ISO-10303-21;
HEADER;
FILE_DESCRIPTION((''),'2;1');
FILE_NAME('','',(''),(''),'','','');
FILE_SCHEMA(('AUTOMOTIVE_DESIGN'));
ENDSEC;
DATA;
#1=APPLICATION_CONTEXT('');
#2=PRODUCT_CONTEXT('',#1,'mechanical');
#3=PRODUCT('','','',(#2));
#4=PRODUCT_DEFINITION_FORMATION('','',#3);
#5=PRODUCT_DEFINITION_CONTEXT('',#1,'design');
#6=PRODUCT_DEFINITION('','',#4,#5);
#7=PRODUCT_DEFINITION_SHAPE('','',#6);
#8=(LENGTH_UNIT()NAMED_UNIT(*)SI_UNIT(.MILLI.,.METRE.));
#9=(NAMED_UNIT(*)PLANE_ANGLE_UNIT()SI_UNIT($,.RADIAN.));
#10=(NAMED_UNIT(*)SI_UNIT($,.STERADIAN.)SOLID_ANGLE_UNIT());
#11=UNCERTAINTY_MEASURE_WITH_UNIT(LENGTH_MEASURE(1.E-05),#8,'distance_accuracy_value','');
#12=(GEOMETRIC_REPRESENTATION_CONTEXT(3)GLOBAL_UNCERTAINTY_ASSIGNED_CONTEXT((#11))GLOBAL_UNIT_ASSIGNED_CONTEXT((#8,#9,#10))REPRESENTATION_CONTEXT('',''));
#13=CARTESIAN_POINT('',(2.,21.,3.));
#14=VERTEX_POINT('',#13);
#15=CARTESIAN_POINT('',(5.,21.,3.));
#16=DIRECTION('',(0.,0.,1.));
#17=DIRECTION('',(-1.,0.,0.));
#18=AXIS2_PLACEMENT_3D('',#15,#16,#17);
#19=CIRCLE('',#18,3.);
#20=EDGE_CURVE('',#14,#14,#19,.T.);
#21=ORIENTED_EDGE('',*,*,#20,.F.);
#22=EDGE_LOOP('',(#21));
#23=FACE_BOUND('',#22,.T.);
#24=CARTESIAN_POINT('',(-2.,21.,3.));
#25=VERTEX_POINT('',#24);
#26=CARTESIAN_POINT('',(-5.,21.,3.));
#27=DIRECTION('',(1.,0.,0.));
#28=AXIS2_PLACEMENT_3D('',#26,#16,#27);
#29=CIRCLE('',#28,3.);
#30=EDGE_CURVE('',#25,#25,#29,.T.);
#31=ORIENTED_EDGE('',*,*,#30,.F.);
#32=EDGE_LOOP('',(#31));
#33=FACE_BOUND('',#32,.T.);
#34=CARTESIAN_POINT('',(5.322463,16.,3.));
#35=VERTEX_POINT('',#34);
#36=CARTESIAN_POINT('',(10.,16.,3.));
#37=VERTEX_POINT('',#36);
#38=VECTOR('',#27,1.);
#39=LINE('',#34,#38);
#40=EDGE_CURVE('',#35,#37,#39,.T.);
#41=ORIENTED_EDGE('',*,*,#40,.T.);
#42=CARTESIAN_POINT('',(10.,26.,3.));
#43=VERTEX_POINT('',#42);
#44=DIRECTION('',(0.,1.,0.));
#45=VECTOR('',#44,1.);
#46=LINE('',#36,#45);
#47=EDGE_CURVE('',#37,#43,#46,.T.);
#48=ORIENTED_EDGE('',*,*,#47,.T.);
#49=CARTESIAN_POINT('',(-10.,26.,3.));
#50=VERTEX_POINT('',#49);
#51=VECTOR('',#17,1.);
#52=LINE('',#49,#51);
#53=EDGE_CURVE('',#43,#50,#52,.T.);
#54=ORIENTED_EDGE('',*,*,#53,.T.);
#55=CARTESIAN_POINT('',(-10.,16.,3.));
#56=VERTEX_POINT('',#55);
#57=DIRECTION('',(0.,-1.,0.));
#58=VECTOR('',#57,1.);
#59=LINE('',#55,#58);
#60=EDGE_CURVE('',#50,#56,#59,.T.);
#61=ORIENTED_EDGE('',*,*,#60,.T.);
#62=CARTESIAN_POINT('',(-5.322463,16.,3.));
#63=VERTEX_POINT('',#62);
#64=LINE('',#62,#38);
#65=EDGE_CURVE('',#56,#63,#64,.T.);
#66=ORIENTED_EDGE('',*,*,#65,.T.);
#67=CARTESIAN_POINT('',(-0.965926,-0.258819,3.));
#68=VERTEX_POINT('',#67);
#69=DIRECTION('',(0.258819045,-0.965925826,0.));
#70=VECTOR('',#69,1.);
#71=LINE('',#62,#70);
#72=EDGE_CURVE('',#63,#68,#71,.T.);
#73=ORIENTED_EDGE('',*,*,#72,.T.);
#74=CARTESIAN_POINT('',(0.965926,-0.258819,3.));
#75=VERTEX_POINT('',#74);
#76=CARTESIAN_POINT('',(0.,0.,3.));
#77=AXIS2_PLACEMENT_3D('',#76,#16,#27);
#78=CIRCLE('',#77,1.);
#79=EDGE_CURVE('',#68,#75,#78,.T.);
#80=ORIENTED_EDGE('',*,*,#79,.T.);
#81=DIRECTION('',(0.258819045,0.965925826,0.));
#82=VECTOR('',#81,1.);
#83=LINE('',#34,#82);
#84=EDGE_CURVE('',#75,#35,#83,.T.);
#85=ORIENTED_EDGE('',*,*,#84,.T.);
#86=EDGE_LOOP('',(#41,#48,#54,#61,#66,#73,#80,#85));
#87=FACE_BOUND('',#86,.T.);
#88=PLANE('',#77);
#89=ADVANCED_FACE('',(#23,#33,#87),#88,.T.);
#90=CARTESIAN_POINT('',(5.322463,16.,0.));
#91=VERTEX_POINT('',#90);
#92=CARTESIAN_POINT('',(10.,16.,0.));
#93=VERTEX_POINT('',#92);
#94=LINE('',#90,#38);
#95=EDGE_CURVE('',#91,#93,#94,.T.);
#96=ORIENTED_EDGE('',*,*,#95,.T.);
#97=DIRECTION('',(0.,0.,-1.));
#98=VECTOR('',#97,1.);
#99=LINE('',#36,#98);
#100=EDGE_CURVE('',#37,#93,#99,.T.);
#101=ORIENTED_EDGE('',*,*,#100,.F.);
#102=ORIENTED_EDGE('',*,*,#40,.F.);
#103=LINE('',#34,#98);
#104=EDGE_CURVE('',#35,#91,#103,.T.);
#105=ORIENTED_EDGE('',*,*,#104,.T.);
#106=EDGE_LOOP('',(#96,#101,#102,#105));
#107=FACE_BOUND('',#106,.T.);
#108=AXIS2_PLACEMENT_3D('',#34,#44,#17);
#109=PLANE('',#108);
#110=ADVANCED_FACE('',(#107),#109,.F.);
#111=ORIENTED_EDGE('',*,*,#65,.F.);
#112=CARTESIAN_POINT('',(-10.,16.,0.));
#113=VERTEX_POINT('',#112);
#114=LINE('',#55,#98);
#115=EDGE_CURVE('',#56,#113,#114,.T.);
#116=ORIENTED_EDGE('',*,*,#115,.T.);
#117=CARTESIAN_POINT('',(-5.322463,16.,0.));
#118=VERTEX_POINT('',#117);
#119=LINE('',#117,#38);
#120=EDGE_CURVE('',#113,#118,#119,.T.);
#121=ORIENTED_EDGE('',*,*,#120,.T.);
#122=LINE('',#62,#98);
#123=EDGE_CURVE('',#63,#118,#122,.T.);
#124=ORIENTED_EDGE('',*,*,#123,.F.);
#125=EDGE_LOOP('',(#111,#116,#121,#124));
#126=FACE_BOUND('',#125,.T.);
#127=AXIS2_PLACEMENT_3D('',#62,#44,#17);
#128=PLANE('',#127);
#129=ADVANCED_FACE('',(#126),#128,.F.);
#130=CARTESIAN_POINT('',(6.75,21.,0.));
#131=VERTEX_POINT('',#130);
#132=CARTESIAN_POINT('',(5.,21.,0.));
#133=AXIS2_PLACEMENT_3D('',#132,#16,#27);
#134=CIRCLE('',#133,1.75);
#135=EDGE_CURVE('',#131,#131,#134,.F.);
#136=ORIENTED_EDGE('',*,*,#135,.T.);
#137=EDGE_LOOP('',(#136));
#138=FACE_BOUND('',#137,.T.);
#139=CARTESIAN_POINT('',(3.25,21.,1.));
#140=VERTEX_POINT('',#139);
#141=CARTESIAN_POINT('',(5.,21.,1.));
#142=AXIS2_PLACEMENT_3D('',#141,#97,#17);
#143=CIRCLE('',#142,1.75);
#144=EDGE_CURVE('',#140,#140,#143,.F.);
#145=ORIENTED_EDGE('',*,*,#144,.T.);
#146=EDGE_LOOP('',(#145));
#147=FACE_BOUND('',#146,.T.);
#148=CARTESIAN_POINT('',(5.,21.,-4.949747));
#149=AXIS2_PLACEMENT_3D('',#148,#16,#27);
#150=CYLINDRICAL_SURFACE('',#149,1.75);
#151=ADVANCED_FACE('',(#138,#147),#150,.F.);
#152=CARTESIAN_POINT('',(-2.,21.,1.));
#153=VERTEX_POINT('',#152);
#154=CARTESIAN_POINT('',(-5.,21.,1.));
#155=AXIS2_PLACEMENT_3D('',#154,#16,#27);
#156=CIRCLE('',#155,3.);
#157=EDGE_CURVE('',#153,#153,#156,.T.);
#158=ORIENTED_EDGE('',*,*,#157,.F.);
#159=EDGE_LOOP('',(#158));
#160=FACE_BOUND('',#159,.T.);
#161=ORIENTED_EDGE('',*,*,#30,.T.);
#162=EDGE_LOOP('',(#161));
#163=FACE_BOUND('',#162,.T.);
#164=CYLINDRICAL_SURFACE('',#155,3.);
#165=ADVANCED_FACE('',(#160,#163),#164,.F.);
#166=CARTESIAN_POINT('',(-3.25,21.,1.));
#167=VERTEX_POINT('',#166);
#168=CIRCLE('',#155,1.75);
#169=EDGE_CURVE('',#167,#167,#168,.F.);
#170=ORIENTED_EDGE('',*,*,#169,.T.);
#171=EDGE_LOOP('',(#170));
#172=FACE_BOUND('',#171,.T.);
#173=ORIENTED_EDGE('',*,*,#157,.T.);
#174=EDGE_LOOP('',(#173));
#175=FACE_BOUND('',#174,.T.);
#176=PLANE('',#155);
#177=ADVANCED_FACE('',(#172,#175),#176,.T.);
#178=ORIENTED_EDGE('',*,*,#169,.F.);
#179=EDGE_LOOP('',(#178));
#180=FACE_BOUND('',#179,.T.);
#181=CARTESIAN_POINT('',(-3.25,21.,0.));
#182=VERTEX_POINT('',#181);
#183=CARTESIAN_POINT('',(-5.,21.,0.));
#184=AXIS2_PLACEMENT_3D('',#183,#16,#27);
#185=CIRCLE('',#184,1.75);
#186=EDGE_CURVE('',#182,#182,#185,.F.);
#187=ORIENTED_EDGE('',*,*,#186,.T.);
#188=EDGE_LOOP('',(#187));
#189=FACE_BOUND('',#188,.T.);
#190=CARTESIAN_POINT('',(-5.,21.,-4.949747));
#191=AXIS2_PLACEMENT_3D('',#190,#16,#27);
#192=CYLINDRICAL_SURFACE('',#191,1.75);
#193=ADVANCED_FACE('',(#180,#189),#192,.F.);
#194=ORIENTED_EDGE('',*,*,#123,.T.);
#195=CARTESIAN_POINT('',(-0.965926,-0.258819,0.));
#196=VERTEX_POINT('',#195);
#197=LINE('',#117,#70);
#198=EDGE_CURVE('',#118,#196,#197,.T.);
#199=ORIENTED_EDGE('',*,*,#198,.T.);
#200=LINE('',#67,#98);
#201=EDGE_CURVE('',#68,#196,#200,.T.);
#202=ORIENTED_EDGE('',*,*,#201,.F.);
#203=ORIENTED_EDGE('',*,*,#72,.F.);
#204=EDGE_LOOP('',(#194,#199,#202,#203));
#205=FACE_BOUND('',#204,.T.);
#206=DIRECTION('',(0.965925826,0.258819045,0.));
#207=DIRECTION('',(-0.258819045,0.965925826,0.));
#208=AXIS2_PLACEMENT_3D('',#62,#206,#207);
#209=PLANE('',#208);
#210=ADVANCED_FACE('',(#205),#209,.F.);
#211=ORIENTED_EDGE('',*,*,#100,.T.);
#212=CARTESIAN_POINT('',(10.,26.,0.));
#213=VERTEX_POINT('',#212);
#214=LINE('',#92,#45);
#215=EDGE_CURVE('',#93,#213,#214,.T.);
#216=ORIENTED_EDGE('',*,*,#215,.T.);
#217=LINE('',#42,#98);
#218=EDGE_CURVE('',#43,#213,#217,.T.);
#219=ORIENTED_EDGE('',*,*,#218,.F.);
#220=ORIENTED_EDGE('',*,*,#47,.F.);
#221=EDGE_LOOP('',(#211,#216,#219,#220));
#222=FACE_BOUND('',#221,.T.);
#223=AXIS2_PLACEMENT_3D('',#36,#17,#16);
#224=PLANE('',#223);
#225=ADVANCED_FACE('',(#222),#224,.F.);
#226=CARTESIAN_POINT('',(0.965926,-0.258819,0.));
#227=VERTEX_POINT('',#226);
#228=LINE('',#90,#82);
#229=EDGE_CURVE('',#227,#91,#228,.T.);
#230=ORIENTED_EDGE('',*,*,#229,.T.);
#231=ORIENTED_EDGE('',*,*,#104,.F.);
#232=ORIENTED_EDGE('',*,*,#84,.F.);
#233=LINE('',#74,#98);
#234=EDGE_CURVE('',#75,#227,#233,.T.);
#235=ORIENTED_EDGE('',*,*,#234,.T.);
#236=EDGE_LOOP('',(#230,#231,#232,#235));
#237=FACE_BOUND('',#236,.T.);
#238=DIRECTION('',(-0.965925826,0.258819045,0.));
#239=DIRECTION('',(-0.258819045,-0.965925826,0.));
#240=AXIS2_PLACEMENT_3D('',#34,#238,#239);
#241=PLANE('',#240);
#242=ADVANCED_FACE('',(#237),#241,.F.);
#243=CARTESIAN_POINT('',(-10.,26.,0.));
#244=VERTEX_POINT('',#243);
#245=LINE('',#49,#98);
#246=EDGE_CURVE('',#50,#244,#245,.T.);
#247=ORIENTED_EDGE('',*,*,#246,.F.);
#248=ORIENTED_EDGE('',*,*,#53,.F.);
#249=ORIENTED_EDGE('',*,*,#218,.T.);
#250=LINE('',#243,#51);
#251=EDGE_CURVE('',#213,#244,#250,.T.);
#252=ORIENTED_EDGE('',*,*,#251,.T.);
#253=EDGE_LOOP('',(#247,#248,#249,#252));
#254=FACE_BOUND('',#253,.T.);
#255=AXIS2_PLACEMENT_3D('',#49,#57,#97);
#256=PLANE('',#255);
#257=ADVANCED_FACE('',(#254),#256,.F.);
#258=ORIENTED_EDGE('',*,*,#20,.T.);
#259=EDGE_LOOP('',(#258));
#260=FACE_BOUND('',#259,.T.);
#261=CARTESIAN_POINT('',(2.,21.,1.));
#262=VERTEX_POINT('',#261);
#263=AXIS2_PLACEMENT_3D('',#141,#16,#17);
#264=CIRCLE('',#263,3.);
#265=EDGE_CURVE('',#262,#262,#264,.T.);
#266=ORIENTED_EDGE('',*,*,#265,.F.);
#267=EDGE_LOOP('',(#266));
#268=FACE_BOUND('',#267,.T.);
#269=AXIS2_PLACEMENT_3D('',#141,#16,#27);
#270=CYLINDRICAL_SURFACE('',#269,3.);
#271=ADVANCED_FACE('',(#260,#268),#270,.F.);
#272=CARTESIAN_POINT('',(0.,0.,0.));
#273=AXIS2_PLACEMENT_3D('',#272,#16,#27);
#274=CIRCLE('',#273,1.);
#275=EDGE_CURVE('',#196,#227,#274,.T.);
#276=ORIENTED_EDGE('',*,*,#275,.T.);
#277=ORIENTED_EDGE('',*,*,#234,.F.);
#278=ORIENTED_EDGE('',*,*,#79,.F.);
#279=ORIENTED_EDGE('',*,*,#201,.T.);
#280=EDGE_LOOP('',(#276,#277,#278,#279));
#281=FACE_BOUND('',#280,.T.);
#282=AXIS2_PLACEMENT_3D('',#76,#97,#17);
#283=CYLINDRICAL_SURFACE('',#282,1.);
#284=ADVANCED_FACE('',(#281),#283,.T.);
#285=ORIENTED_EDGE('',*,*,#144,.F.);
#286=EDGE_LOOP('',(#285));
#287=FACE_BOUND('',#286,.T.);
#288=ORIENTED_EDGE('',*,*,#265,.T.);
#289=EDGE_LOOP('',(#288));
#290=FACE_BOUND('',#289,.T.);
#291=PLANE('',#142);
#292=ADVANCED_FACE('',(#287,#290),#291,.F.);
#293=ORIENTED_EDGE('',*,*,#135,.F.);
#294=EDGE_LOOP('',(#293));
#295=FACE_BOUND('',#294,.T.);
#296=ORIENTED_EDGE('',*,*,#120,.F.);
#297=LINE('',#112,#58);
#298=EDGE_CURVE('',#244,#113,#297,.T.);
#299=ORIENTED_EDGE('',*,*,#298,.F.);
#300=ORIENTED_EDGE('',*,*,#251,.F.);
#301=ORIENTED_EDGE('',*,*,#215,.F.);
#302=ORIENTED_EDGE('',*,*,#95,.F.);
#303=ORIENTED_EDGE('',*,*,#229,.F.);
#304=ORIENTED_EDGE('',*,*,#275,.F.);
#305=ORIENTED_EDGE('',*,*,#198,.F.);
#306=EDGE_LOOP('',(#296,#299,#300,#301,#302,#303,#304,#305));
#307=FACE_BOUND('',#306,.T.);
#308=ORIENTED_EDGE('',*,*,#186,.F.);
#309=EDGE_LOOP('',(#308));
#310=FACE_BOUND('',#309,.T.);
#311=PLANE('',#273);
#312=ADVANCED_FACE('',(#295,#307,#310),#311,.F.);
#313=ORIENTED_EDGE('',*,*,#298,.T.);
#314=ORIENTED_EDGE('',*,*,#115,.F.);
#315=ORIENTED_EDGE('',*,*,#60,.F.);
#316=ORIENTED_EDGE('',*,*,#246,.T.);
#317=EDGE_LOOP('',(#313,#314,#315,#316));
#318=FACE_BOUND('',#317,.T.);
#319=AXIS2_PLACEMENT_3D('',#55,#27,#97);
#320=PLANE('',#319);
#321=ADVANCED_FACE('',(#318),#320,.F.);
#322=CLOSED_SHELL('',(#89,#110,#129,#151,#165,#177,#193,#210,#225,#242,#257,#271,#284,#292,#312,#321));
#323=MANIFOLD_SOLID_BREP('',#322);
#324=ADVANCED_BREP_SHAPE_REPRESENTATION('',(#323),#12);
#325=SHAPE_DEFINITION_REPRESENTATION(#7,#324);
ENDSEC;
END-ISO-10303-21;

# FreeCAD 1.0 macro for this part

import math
import FreeCAD as App
import Part
import Sketcher
from FreeCAD import Vector
Q = App.Units.Quantity

doc = App.newDocument("Part")
body = doc.addObject("PartDesign::Body", "Body")

# Sketch on XY plane
sketch1 = body.newObject("Sketcher::SketchObject", "Sketch")
sketch1.AttachmentSupport = (doc.getObject("XY_Plane"), [""])
sketch1.MapMode = "FlatFace"
sketch1.addGeometry([
    Part.LineSegment(Vector(-5.322463, 16, 0), Vector(-0.965926, -0.258819, 0)),  # 0
    Part.ArcOfCircle(Part.Circle(Vector(0, 0, 0), Vector(0, 0, 1), 1), math.radians(-165), math.radians(-15)),  # 1
    Part.LineSegment(Vector(0.965926, -0.258819, 0), Vector(5.322463, 16, 0)),  # 2
    Part.LineSegment(Vector(5.322463, 16, 0), Vector(10, 16, 0)),  # 3
    Part.LineSegment(Vector(10, 16, 0), Vector(10, 26, 0)),  # 4
    Part.LineSegment(Vector(10, 26, 0), Vector(-10, 26, 0)),  # 5
    Part.LineSegment(Vector(-10, 26, 0), Vector(-10, 16, 0)),  # 6
    Part.LineSegment(Vector(-10, 16, 0), Vector(-5.322463, 16, 0)),  # 7
], False)
sketch1.addConstraint([
    Sketcher.Constraint("Tangent", 0, 2, 1, 1),
    Sketcher.Constraint("Tangent", 1, 2, 2, 1),
    Sketcher.Constraint("Coincident", 2, 2, 3, 1),
    Sketcher.Constraint("Coincident", 3, 2, 4, 1),
    Sketcher.Constraint("Coincident", 4, 2, 5, 1),
    Sketcher.Constraint("Coincident", 5, 2, 6, 1),
    Sketcher.Constraint("Coincident", 6, 2, 7, 1),
    Sketcher.Constraint("Coincident", 7, 2, 0, 1),
    Sketcher.Constraint("Horizontal", 3),
    Sketcher.Constraint("Vertical", 4),
    Sketcher.Constraint("Horizontal", 5),
    Sketcher.Constraint("Vertical", 6),
    Sketcher.Constraint("Horizontal", 7),
    Sketcher.Constraint("Coincident", 1, 3, -1, 1),
    Sketcher.Constraint("Symmetric", 3, 2, 6, 2, -2),
    Sketcher.Constraint("Horizontal", 0, 2, 1, 2),
    Sketcher.Constraint("Radius", 1, Q("1 mm")),
    Sketcher.Constraint("DistanceX", 5, 2, 5, 1, Q("20 mm")),
    Sketcher.Constraint("DistanceY", 4, 1, 4, 2, Q("10 mm")),
    Sketcher.Constraint("Angle", 0, Q("-75 deg")),
    Sketcher.Constraint("DistanceY", -1, 1, 2, 2, Q("16 mm")),
])
pad1 = body.newObject("PartDesign::Pad", "Pad")
pad1.Profile = sketch1
pad1.Length = 3

# Sketch on XY plane
sketch2 = body.newObject("Sketcher::SketchObject", "Sketch001")
sketch2.AttachmentSupport = (doc.getObject("XY_Plane"), [""])
sketch2.MapMode = "FlatFace"
sketch2.AttachmentOffset = App.Placement(Vector(0, 0, 3), App.Rotation())
sketch2.addGeometry([
    Part.Circle(Vector(-5, 21, 0), Vector(0, 0, 1), 1.75),
    Part.Circle(Vector(5, 21, 0), Vector(0, 0, 1), 1.75),
], False)
sketch2.addConstraint([
    Sketcher.Constraint("Equal", 0, 1),
    Sketcher.Constraint("Symmetric", 0, 3, 1, 3, -2),
    Sketcher.Constraint("Diameter", 0, Q("3.5 mm")),
    Sketcher.Constraint("DistanceX", 0, 3, -1, 1, Q("5 mm")),
    Sketcher.Constraint("DistanceY", -1, 1, 0, 3, Q("21 mm")),
])
pocket1 = body.newObject("PartDesign::Pocket", "Pocket")
pocket1.Profile = sketch2
pocket1.Length = 3

# Sketch on XY plane
sketch3 = body.newObject("Sketcher::SketchObject", "Sketch002")
sketch3.AttachmentSupport = (doc.getObject("XY_Plane"), [""])
sketch3.MapMode = "FlatFace"
sketch3.AttachmentOffset = App.Placement(Vector(0, 0, 3), App.Rotation())
sketch3.addGeometry([
    Part.Circle(Vector(-5, 21, 0), Vector(0, 0, 1), 3),
    Part.Circle(Vector(5, 21, 0), Vector(0, 0, 1), 3),
], False)
sketch3.addConstraint([
    Sketcher.Constraint("Equal", 0, 1),
    Sketcher.Constraint("Symmetric", 0, 3, 1, 3, -2),
    Sketcher.Constraint("Diameter", 0, Q("6 mm")),
    Sketcher.Constraint("DistanceX", 0, 3, -1, 1, Q("5 mm")),
    Sketcher.Constraint("DistanceY", -1, 1, 0, 3, Q("21 mm")),
])
pocket2 = body.newObject("PartDesign::Pocket", "Pocket001")
pocket2.Profile = sketch3
pocket2.Length = 2

doc.recompute()
